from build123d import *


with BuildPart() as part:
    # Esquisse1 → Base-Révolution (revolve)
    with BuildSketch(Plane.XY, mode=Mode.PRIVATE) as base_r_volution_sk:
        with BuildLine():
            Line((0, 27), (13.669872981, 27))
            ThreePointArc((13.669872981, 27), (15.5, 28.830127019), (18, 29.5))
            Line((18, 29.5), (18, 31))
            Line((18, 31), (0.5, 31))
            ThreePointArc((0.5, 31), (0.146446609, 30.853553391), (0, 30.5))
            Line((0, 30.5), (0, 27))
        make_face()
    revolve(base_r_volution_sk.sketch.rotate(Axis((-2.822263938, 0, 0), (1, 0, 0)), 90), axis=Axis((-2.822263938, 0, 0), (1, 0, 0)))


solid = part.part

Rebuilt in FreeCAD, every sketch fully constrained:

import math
import FreeCAD as App
import Part
import Sketcher
Q = App.Units.Quantity

doc = App.newDocument("Part")
params = doc.addObject("Spreadsheet::Sheet", "Params")
for row, (alias, value) in enumerate([
    ("sketch1_radius", "5 mm"),
    ("sketch1_radius2", "0.5 mm"),
    ("sketch1_width", "17.5 mm"),
    ("sketch1_height", "1.5 mm"),
    ("sketch1_height2", "3.5 mm"),
    ("revolution_angle", "360 deg"),
], start=1):
    params.set(f"A{row}", alias)
    params.set(f"B{row}", "=" + value)
    params.setAlias(f"B{row}", alias)

body = doc.addObject("PartDesign::Body", "Body")

# Sketch on XY plane
sketch1 = body.newObject("Sketcher::SketchObject", "Sketch")
sketch1.AttachmentSupport = (doc.getObject("XY_Plane"), [""])
sketch1.MapMode = "FlatFace"
sketch1.addGeometry([
    Part.LineSegment(App.Vector(0, 27, 0), App.Vector(13.67, 27, 0)),  # 0
    Part.ArcOfCircle(Part.Circle(App.Vector(18, 24.5, 0), App.Vector(0, 0, 1), 5), math.radians(90), math.radians(150)),  # 1
    Part.LineSegment(App.Vector(18, 29.5, 0), App.Vector(18, 31, 0)),  # 2
    Part.LineSegment(App.Vector(18, 31, 0), App.Vector(0.5, 31, 0)),  # 3
    Part.ArcOfCircle(Part.Circle(App.Vector(0.5, 30.5, 0), App.Vector(0, 0, 1), 0.5), math.radians(90), math.radians(180)),  # 4
    Part.LineSegment(App.Vector(0, 30.5, 0), App.Vector(0, 27, 0)),  # 5
], False)
sketch1.addConstraint([
    Sketcher.Constraint("Coincident", 0, 2, 1, 2),
    Sketcher.Constraint("Coincident", 1, 1, 2, 1),
    Sketcher.Constraint("Coincident", 2, 2, 3, 1),
    Sketcher.Constraint("Tangent", 3, 2, 4, 1),
    Sketcher.Constraint("Tangent", 4, 2, 5, 1),
    Sketcher.Constraint("Coincident", 5, 2, 0, 1),
    Sketcher.Constraint("Horizontal", 0),
    Sketcher.Constraint("Vertical", 2),
    Sketcher.Constraint("Horizontal", 3),
    Sketcher.Constraint("Vertical", 5),
    Sketcher.Constraint("PointOnObject", 4, 2, -2),
    Sketcher.Constraint("Radius", 1, Q("5 mm")),
    Sketcher.Constraint("Radius", 4, Q("0.5 mm")),
    Sketcher.Constraint("DistanceX", 3, 2, 3, 1, Q("17.5 mm")),
    Sketcher.Constraint("DistanceY", 2, 1, 2, 2, Q("1.5 mm")),
    Sketcher.Constraint("DistanceY", 5, 2, 5, 1, Q("3.5 mm")),
    Sketcher.Constraint("DistanceX", -1, 1, 1, 3, Q("18 mm")),
    Sketcher.Constraint("DistanceY", -1, 1, 0, 2, Q("27 mm")),
])
sketch1.setExpression("Constraints[11]", "Params.sketch1_radius")
sketch1.setExpression("Constraints[12]", "Params.sketch1_radius2")
sketch1.setExpression("Constraints[13]", "Params.sketch1_width")
sketch1.setExpression("Constraints[14]", "Params.sketch1_height")
sketch1.setExpression("Constraints[15]", "Params.sketch1_height2")
revolution = body.newObject("PartDesign::Revolution", "Revolution")
revolution.Profile = sketch1
revolution.ReferenceAxis = (sketch1, ["H_Axis"])
revolution.setExpression("Angle", "Params.revolution_angle")

doc.recompute()
